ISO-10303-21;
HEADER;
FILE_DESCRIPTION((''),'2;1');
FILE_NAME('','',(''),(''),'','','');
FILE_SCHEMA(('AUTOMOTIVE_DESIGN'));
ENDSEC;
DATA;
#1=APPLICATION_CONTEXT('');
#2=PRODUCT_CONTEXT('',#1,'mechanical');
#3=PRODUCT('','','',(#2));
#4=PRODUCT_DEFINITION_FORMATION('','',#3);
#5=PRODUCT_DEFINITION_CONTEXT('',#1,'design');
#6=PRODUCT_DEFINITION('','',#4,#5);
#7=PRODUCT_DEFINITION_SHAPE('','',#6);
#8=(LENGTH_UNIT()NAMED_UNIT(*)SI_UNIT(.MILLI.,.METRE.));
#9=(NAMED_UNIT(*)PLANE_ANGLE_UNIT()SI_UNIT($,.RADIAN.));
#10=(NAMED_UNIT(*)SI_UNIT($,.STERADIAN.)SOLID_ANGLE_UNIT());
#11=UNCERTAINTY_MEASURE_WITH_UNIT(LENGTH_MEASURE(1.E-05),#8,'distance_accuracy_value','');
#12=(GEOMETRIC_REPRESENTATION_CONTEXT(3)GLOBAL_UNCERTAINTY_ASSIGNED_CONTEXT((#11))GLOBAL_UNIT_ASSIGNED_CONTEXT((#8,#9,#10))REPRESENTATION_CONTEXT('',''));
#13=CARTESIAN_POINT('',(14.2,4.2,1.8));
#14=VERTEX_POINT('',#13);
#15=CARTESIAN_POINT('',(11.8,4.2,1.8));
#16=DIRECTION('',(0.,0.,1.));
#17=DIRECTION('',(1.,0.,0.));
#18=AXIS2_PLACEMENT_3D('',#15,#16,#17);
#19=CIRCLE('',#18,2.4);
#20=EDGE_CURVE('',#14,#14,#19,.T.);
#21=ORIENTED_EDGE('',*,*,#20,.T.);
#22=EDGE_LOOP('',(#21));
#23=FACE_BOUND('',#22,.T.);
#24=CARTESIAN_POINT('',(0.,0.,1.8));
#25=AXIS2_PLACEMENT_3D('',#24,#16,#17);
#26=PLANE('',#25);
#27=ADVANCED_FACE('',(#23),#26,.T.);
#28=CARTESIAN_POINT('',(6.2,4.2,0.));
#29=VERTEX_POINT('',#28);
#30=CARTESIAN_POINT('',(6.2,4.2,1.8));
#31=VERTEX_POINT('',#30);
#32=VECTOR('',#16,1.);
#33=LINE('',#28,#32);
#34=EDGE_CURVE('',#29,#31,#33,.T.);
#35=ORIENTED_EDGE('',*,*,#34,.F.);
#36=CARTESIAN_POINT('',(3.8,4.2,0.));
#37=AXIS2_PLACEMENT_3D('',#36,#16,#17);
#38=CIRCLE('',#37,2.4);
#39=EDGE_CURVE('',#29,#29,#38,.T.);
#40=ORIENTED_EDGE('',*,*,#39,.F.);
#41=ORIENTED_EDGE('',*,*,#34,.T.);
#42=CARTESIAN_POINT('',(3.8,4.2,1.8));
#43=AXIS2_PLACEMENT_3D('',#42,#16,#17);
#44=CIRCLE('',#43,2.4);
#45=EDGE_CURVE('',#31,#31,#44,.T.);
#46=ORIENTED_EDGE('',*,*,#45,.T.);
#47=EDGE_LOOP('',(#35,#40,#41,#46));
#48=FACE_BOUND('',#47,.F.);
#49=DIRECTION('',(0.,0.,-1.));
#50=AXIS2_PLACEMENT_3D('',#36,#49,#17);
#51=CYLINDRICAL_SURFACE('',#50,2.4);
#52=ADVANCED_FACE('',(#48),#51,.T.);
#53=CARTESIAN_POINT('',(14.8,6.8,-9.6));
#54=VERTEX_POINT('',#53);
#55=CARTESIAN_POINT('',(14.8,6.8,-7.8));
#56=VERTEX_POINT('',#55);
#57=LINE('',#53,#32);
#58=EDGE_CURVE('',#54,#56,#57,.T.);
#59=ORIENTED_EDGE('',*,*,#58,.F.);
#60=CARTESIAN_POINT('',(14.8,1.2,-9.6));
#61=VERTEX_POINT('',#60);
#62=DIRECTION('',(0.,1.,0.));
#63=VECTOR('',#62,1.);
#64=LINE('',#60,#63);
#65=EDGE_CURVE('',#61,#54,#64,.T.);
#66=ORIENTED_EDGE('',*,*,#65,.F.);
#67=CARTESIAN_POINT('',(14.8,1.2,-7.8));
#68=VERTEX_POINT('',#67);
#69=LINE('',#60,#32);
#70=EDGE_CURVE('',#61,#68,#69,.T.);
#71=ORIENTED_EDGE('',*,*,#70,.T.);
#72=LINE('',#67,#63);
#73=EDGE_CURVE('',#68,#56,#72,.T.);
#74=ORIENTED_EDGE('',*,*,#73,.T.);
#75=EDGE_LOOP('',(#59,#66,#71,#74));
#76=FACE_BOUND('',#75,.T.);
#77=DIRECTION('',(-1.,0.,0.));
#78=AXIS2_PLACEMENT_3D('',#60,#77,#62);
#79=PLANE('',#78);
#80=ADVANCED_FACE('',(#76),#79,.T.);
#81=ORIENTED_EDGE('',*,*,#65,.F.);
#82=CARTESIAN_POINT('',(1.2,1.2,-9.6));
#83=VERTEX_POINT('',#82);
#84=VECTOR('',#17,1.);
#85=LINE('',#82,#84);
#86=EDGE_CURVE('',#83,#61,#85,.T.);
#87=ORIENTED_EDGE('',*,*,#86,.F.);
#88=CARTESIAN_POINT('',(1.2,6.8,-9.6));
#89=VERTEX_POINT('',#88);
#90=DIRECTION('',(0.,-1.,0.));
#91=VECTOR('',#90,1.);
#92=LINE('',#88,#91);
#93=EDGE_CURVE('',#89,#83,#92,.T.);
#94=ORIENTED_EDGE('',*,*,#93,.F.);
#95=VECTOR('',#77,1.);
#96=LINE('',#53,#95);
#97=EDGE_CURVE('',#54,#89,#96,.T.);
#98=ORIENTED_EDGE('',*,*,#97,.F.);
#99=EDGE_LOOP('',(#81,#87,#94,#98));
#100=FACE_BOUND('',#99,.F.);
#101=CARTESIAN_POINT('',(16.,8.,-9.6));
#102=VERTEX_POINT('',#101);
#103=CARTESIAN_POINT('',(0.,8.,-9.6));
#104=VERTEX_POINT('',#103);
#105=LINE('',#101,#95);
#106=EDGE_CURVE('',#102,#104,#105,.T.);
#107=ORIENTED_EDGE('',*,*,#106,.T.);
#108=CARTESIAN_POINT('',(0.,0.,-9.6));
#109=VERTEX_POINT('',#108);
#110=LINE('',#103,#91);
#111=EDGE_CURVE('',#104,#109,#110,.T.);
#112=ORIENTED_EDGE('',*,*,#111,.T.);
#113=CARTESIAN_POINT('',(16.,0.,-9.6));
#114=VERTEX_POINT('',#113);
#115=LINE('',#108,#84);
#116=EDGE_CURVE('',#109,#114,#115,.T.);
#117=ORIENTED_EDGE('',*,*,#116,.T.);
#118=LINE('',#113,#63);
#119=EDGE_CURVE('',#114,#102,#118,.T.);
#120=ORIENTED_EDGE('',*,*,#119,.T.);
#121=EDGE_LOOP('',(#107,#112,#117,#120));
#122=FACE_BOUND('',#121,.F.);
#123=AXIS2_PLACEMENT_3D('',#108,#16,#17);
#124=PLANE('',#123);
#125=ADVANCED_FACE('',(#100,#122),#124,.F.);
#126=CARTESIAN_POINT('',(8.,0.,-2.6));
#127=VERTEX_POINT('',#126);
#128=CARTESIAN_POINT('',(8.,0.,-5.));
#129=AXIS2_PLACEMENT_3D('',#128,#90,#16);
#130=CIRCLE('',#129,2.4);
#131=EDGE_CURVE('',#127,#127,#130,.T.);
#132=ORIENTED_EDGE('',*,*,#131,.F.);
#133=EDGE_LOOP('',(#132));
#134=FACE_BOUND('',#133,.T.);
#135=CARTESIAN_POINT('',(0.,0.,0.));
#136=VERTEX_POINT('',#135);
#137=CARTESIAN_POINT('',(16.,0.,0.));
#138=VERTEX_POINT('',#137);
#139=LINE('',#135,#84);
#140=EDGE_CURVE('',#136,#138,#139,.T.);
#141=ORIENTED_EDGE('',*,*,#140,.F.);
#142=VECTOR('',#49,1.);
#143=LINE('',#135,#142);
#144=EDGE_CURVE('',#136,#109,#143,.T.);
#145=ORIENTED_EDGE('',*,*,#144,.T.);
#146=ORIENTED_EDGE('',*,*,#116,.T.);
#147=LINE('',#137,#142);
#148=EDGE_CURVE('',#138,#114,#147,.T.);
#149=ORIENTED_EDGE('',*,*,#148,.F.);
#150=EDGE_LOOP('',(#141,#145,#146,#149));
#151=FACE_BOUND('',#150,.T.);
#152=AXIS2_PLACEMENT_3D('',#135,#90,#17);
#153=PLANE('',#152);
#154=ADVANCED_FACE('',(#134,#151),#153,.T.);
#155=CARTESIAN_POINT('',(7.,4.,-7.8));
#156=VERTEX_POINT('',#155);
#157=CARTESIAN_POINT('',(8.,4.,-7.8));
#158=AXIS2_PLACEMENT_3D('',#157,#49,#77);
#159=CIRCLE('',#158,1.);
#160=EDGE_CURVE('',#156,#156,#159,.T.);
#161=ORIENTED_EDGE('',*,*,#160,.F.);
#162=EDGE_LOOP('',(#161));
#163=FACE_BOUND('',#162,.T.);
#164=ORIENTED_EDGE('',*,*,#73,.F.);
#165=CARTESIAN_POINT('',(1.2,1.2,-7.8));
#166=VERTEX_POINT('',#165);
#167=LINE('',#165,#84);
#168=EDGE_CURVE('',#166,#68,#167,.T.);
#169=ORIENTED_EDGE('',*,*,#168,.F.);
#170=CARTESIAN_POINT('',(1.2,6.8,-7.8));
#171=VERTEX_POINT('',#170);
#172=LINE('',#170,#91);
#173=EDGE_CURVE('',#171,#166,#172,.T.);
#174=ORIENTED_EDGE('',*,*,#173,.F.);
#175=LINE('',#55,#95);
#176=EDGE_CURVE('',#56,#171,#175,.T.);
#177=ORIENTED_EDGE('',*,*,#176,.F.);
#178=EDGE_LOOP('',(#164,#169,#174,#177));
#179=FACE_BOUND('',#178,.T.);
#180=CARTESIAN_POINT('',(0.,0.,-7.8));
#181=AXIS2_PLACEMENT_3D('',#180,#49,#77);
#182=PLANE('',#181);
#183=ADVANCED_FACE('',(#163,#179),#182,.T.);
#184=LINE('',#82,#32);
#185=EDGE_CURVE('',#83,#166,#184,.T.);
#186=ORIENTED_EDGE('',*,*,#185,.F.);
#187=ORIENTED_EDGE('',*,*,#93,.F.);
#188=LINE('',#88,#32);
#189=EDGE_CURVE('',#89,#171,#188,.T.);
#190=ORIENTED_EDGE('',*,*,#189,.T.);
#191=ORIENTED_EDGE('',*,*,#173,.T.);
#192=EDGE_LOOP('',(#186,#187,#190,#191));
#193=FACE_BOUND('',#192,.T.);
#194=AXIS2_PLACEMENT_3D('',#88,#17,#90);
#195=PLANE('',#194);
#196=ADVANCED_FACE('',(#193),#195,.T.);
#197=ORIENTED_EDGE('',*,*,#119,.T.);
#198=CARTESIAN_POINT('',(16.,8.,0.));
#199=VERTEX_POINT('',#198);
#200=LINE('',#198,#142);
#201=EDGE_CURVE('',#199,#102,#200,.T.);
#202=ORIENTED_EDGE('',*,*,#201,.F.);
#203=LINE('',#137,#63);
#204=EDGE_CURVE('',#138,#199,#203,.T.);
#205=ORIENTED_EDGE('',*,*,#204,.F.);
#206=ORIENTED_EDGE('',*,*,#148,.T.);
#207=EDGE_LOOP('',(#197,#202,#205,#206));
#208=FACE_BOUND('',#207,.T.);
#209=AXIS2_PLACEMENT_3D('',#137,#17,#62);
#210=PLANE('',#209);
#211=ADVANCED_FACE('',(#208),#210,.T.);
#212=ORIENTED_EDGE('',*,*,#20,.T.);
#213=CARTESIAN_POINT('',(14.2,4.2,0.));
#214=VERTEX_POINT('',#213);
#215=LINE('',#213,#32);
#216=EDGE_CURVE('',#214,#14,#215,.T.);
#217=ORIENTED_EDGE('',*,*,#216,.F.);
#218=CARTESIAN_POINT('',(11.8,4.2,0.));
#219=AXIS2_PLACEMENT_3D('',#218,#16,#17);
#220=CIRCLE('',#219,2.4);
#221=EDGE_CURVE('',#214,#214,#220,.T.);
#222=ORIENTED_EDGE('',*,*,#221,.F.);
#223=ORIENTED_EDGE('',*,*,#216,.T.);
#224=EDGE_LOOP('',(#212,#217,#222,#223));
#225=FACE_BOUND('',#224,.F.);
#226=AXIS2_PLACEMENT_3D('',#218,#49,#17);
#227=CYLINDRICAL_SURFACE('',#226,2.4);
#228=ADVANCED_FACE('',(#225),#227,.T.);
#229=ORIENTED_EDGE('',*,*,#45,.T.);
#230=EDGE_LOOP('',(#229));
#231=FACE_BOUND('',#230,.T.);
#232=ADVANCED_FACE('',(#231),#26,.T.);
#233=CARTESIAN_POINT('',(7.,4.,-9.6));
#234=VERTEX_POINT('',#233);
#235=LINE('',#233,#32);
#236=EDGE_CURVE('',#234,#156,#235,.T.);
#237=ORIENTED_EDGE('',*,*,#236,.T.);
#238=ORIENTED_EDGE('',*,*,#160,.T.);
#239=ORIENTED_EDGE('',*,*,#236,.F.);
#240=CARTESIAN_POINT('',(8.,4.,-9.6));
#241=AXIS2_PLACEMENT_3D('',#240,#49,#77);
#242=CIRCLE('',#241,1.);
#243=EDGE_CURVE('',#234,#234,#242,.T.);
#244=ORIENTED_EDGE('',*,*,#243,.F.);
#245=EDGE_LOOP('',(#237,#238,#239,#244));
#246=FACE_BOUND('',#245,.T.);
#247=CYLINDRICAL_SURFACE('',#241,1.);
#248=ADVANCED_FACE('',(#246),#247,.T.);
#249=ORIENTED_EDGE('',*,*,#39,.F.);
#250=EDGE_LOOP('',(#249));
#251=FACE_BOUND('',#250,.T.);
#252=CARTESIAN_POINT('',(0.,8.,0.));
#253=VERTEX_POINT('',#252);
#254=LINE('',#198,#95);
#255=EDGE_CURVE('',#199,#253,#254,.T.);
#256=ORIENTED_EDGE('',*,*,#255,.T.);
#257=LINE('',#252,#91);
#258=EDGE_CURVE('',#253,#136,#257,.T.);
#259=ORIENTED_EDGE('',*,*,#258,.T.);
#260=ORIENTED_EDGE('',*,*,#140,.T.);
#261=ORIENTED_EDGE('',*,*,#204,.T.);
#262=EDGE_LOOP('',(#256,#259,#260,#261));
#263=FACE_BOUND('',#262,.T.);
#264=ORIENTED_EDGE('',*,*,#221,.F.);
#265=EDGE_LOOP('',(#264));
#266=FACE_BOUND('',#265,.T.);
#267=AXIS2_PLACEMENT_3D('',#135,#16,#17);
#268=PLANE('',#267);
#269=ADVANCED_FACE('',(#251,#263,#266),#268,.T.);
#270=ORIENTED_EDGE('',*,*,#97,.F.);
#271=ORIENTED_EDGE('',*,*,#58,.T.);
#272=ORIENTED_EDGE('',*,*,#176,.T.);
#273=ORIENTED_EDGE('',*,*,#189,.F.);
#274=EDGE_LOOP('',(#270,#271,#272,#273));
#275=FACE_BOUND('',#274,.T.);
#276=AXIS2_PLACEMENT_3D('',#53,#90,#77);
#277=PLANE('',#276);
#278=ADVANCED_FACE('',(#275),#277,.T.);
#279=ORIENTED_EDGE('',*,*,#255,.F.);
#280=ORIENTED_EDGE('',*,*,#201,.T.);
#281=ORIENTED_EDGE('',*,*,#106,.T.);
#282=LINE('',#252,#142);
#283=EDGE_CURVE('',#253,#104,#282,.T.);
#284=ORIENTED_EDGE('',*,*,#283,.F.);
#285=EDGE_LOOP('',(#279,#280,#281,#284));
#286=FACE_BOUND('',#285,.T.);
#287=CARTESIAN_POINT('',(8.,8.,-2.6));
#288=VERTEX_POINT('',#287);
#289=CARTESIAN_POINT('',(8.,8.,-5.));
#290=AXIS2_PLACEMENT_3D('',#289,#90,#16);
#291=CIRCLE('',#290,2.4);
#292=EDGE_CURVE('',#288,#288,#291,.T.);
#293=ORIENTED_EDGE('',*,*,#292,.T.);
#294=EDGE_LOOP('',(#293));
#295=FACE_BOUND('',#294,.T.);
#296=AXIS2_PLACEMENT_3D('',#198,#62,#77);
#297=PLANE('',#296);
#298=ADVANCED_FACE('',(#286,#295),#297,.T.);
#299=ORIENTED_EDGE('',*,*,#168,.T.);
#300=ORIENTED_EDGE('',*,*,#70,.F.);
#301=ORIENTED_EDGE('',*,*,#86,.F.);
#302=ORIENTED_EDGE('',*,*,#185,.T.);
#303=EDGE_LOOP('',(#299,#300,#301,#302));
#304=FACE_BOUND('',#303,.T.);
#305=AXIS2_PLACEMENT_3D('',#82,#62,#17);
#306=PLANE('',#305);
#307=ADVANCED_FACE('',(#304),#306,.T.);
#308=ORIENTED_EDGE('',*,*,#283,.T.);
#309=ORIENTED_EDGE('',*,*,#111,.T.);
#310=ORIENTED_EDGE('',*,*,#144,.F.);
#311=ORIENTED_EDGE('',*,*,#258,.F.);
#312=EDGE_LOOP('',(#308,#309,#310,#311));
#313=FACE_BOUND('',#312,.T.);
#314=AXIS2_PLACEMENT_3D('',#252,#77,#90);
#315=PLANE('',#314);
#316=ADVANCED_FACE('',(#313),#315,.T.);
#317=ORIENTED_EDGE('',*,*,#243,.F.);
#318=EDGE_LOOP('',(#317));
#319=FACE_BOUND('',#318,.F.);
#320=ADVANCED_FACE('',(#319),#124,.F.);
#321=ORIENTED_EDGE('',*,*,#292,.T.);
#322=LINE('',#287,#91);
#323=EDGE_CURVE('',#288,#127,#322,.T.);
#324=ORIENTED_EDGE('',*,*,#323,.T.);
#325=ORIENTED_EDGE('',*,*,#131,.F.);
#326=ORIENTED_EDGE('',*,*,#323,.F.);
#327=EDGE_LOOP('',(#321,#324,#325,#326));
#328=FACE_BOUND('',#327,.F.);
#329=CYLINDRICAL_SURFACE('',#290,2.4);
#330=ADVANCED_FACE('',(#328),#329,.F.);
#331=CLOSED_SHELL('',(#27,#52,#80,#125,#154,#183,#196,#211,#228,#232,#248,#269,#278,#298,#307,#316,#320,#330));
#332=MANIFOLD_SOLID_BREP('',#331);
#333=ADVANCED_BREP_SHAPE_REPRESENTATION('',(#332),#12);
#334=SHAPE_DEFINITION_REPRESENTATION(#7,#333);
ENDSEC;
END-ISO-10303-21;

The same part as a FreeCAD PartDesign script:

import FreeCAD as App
import Part
import Sketcher


def add_polygon(sketch, points):
    """Adds a closed chain of lines whose ends are joined by coincident constraints."""
    first, n = sketch.GeometryCount, len(points)
    for a, b in zip(points, points[1:] + points[:1]):
        sketch.addGeometry(Part.LineSegment(App.Vector(*a, 0), App.Vector(*b, 0)), False)
    for i in range(n):
        sketch.addConstraint(Sketcher.Constraint("Coincident", first + i, 2, first + (i + 1) % n, 1))

doc = App.newDocument("Part")
params = doc.addObject("Spreadsheet::Sheet", "Params")
for row, (alias, value) in enumerate([
    ("sketch1_width", "16 mm"),
    ("sketch1_height", "8 mm"),
    ("pad1_length", "9.6 mm"),
    ("sketch2_diameter", "4.8 mm"),
    ("pad2_length", "1.8 mm"),
    ("sketch3_diameter", "2 mm"),
    ("sketch3_width", "13.6 mm"),
    ("sketch3_height", "5.6 mm"),
    ("pocket1_length", "1.8 mm"),
    ("sketch4_diameter", "4.8 mm"),
    ("hole_diameter", "4.8 mm"),
    ("hole_depth", "25.4 mm"),
], start=1):
    params.set(f"A{row}", alias)
    params.set(f"B{row}", "=" + value)
    params.setAlias(f"B{row}", alias)

body = doc.addObject("PartDesign::Body", "Body")

# Sketch on XY plane
sketch1 = body.newObject("Sketcher::SketchObject", "Sketch")
sketch1.AttachmentSupport = (doc.getObject("XY_Plane"), [""])
sketch1.MapMode = "FlatFace"
add_polygon(sketch1, [(0, 8), (0, 0), (16, 0), (16, 8)])  # lines 0-3
sketch1.addConstraint([
    Sketcher.Constraint("Vertical", 0),
    Sketcher.Constraint("Horizontal", 1),
    Sketcher.Constraint("Vertical", 2),
    Sketcher.Constraint("Horizontal", 3),
    Sketcher.Constraint("Coincident", 0, 2, -1, 1),
    Sketcher.Constraint("DistanceX", 1, 1, 1, 2, 16.0),
    Sketcher.Constraint("DistanceY", 0, 2, 0, 1, 8.0),
])
sketch1.setExpression("Constraints[9]", "Params.sketch1_width")
sketch1.setExpression("Constraints[10]", "Params.sketch1_height")
pad1 = body.newObject("PartDesign::Pad", "Pad")
pad1.Profile = sketch1
pad1.setExpression("Length", "Params.pad1_length")
pad1.Reversed = True

# Sketch on XY plane
sketch2 = body.newObject("Sketcher::SketchObject", "Sketch001")
sketch2.AttachmentSupport = (doc.getObject("XY_Plane"), [""])
sketch2.MapMode = "FlatFace"
sketch2.addGeometry([
    Part.Circle(App.Vector(3.8, 4.2, 0), App.Vector(0, 0, 1), 2.4),
    Part.Circle(App.Vector(11.8, 4.2, 0), App.Vector(0, 0, 1), 2.4),
], False)
sketch2.addConstraint([
    Sketcher.Constraint("Equal", 0, 1),
    Sketcher.Constraint("Horizontal", 0, 3, 1, 3),
    Sketcher.Constraint("Diameter", 0, 4.8),
    Sketcher.Constraint("DistanceX", 0, 3, 1, 3, 8.0),
    Sketcher.Constraint("DistanceX", -1, 1, 0, 3, 3.8),
    Sketcher.Constraint("DistanceY", -1, 1, 0, 3, 4.2),
])
sketch2.setExpression("Constraints[2]", "Params.sketch2_diameter")
pad2 = body.newObject("PartDesign::Pad", "Pad001")
pad2.Profile = sketch2
pad2.setExpression("Length", "Params.pad2_length")

# Sketch on XY plane
sketch3 = body.newObject("Sketcher::SketchObject", "Sketch002")
sketch3.AttachmentSupport = (doc.getObject("XY_Plane"), [""])
sketch3.MapMode = "FlatFace"
sketch3.AttachmentOffset = App.Placement(App.Vector(0, 0, -9.6), App.Rotation())
add_polygon(sketch3, [(1.2, 6.8), (14.8, 6.8), (14.8, 1.2), (1.2, 1.2)])  # lines 0-3
sketch3.addGeometry(Part.Circle(App.Vector(8, 4, 0), App.Vector(0, 0, 1), 1), False)  # 4
sketch3.addConstraint([
    Sketcher.Constraint("Horizontal", 0),
    Sketcher.Constraint("Vertical", 1),
    Sketcher.Constraint("Horizontal", 2),
    Sketcher.Constraint("Vertical", 3),
    Sketcher.Constraint("Diameter", 4, 2.0),
    Sketcher.Constraint("DistanceX", -1, 1, 4, 3, 8.0),
    Sketcher.Constraint("DistanceY", -1, 1, 4, 3, 4.0),
    Sketcher.Constraint("DistanceY", -1, 1, 1, 2, 1.2),
    Sketcher.Constraint("DistanceX", -1, 1, 2, 2, 1.2),
    Sketcher.Constraint("DistanceX", 0, 1, 0, 2, 13.6),
    Sketcher.Constraint("DistanceY", 1, 2, 1, 1, 5.6),
])
sketch3.setExpression("Constraints[8]", "Params.sketch3_diameter")
sketch3.setExpression("Constraints[13]", "Params.sketch3_width")
sketch3.setExpression("Constraints[14]", "Params.sketch3_height")
pocket1 = body.newObject("PartDesign::Pocket", "Pocket")
pocket1.Profile = sketch3
pocket1.setExpression("Length", "Params.pocket1_length")
pocket1.Reversed = True

# Sketch on XZ plane
sketch4 = body.newObject("Sketcher::SketchObject", "Sketch003")
sketch4.AttachmentSupport = (doc.getObject("XZ_Plane"), [""])
sketch4.MapMode = "FlatFace"
sketch4.AttachmentOffset = App.Placement(App.Vector(0, 0, -8), App.Rotation())
sketch4.addGeometry(Part.Circle(App.Vector(8, -5, 0), App.Vector(0, 0, 1), 2.4), False)
sketch4.addConstraint([
    Sketcher.Constraint("Diameter", 0, 4.8),
    Sketcher.Constraint("DistanceX", -1, 1, 0, 3, 8.0),
    Sketcher.Constraint("DistanceY", 0, 3, -1, 1, 5.0),
])
sketch4.setExpression("Constraints[0]", "Params.sketch4_diameter")
doc.recompute()
hole = body.newObject("PartDesign::Hole", "Hole")
hole.Profile = sketch4
hole.ThreadType = "None"
hole.setExpression("Diameter", "Params.hole_diameter")
hole.DepthType = "Dimension"
hole.setExpression("Depth", "Params.hole_depth")
hole.DrillPoint = "Angled"
hole.DrillPointAngle = 118
hole.Reversed = True

doc.recompute()
